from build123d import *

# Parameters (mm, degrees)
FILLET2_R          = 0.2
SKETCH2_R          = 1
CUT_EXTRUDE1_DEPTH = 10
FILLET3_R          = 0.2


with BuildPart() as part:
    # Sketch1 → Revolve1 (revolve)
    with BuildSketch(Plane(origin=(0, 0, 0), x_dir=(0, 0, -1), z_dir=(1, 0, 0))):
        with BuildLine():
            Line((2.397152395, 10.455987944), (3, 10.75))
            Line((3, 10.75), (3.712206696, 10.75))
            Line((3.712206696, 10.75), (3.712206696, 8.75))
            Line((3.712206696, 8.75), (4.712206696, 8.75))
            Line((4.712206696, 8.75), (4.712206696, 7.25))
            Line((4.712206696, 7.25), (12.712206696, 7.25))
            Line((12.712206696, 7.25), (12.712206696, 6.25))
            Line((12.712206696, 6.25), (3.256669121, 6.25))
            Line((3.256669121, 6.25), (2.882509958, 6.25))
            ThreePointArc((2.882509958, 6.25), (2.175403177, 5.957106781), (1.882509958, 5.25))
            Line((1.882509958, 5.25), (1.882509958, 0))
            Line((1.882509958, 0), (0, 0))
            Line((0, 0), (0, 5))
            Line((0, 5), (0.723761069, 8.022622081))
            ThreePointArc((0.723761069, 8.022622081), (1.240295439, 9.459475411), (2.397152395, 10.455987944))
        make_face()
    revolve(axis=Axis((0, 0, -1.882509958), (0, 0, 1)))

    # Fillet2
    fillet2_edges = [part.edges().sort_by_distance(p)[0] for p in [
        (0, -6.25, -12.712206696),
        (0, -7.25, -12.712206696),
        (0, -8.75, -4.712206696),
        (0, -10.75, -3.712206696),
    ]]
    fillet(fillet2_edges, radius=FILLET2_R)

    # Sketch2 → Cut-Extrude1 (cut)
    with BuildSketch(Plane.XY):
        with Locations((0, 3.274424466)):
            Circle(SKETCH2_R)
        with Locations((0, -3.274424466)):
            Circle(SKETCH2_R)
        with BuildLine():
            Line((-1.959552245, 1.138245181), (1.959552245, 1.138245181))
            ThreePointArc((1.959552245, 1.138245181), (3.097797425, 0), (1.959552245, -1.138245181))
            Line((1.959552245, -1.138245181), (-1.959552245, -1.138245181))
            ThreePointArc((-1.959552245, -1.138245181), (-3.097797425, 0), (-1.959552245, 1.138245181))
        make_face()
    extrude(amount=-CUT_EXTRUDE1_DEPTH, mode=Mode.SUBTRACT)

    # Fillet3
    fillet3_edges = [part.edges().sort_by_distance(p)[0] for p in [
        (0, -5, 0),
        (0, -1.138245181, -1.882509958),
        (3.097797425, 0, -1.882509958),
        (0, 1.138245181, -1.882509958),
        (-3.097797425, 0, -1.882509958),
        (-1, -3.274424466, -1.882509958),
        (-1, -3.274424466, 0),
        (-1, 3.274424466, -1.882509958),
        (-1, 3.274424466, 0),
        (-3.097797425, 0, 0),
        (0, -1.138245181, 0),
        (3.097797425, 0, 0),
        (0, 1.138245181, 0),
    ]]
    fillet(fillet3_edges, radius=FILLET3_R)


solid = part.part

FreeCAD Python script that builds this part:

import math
import FreeCAD as App
import Part
import Sketcher
Q = App.Units.Quantity


def edges_at(feature, points):
    """Names of the edges that pass closest to the given points."""
    edges = feature.Shape.Edges
    near = lambda p: min(range(len(edges)), key=lambda i: edges[i].distToShape(Part.Vertex(*p))[0])
    return sorted({f"Edge{near(p) + 1}" for p in points})

doc = App.newDocument("Part")
body = doc.addObject("PartDesign::Body", "Body")

# Sketch on YZ plane
sketch1 = doc.addObject("Sketcher::SketchObject", "Sketch")
body.addObject(sketch1)
sketch1.AttachmentSupport = (doc.YZ_Plane, [""])
sketch1.MapMode = "FlatFace"
sketch1.addGeometry([
    Part.LineSegment(App.Vector(10.8, -3, 0), App.Vector(10.5, -2.4, 0)),  # 0
    Part.ArcOfCircle(Part.Circle(App.Vector(7.8, -3.7, 0), App.Vector(0, 0, 1), 3), math.radians(26), math.radians(85)),  # 1
    Part.LineSegment(App.Vector(8, -0.7, 0), App.Vector(5, 0, 0)),  # 2
    Part.LineSegment(App.Vector(5, 0, 0), App.Vector(0, 0, 0)),  # 3
    Part.LineSegment(App.Vector(0, 0, 0), App.Vector(0, -1.9, 0)),  # 4
    Part.LineSegment(App.Vector(0, -1.9, 0), App.Vector(5.2, -1.9, 0)),  # 5
    Part.ArcOfCircle(Part.Circle(App.Vector(5.2, -2.9, 0), App.Vector(0, 0, 1), 1), math.radians(0), math.radians(90)),  # 6
    Part.LineSegment(App.Vector(6.2, -2.9, 0), App.Vector(6.2, -12.7, 0)),  # 7
    Part.LineSegment(App.Vector(6.2, -12.7, 0), App.Vector(7.2, -12.7, 0)),  # 8
    Part.LineSegment(App.Vector(7.2, -12.7, 0), App.Vector(7.2, -4.7, 0)),  # 9
    Part.LineSegment(App.Vector(7.2, -4.7, 0), App.Vector(8.8, -4.7, 0)),  # 10
    Part.LineSegment(App.Vector(8.8, -4.7, 0), App.Vector(8.8, -3.7, 0)),  # 11
    Part.LineSegment(App.Vector(8.8, -3.7, 0), App.Vector(10.8, -3.7, 0)),  # 12
    Part.LineSegment(App.Vector(10.8, -3.7, 0), App.Vector(10.8, -3, 0)),  # 13
], False)
sketch1.addConstraint([
    Sketcher.Constraint("Tangent", 0, 2, 1, 1),
    Sketcher.Constraint("Coincident", 1, 2, 2, 1),
    Sketcher.Constraint("Coincident", 2, 2, 3, 1),
    Sketcher.Constraint("Coincident", 3, 2, 4, 1),
    Sketcher.Constraint("Coincident", 4, 2, 5, 1),
    Sketcher.Constraint("Tangent", 5, 2, 6, 2),
    Sketcher.Constraint("Tangent", 6, 1, 7, 1),
    Sketcher.Constraint("Coincident", 7, 2, 8, 1),
    Sketcher.Constraint("Coincident", 8, 2, 9, 1),
    Sketcher.Constraint("Coincident", 9, 2, 10, 1),
    Sketcher.Constraint("Coincident", 10, 2, 11, 1),
    Sketcher.Constraint("Coincident", 11, 2, 12, 1),
    Sketcher.Constraint("Coincident", 12, 2, 13, 1),
    Sketcher.Constraint("Coincident", 13, 2, 0, 1),
    Sketcher.Constraint("Horizontal", 3),
    Sketcher.Constraint("Vertical", 4),
    Sketcher.Constraint("Horizontal", 5),
    Sketcher.Constraint("Vertical", 7),
    Sketcher.Constraint("Horizontal", 8),
    Sketcher.Constraint("Vertical", 9),
    Sketcher.Constraint("Horizontal", 10),
    Sketcher.Constraint("Vertical", 11),
    Sketcher.Constraint("Horizontal", 12),
    Sketcher.Constraint("Vertical", 13),
    Sketcher.Constraint("Coincident", 3, 2, -1, 1),
    Sketcher.Constraint("Horizontal", 1, 3, 11, 2),
    Sketcher.Constraint("Equal", 8, 11),
    Sketcher.Constraint("Radius", 1, Q("3 mm")),
    Sketcher.Constraint("Radius", 6, Q("1 mm")),
    Sketcher.Constraint("DistanceX", 3, 2, 3, 1, Q("5 mm")),
    Sketcher.Constraint("DistanceX", 8, 1, 8, 2, Q("1 mm")),
    Sketcher.Constraint("DistanceX", 12, 1, 12, 2, Q("2 mm")),
    Sketcher.Constraint("DistanceY", 9, 1, 9, 2, Q("8 mm")),
    Sketcher.Constraint("DistanceX", 10, 1, 10, 2, Q("1.5 mm")),
    Sketcher.Constraint("DistanceY", 13, 2, -1, 1, Q("3 mm")),
    Sketcher.Constraint("DistanceX", 5, 1, 5, 2, Q("5.25 mm")),
    Sketcher.Constraint("DistanceY", 4, 2, 4, 1, Q("1.88251 mm")),
    Sketcher.Constraint("DistanceY", 7, 2, 7, 1, Q("9.829697 mm")),
    Sketcher.Constraint("DistanceY", 1, 2, -1, 1, Q("0.723761 mm")),
    Sketcher.Constraint("DistanceX", 1, 3, 0, 2, Q("2.696411 mm")),
])
revolution = doc.addObject("PartDesign::Revolution", "Revolution")
body.addObject(revolution)
revolution.Profile = sketch1
revolution.ReferenceAxis = (sketch1, ["V_Axis"])
revolution.Angle = 360
doc.recompute()

fillet = doc.addObject("PartDesign::Fillet", "Fillet")
body.addObject(fillet)
fillet.Base = (revolution, edges_at(revolution, [
    (0, -6.25, -12.712),
    (0, -7.25, -12.712),
    (0, -8.75, -4.712),
    (0, -10.75, -3.712),
]))
fillet.Radius = 0.2

# Sketch on XY plane
sketch2 = doc.addObject("Sketcher::SketchObject", "Sketch001")
body.addObject(sketch2)
sketch2.AttachmentSupport = (doc.XY_Plane, [""])
sketch2.MapMode = "FlatFace"
sketch2.addGeometry([
    Part.Circle(App.Vector(0, 3.3, 0), App.Vector(0, 0, 1), 1),  # 0
    Part.Circle(App.Vector(0, -3.3, 0), App.Vector(0, 0, 1), 1),  # 1
    Part.LineSegment(App.Vector(2, 1.1, 0), App.Vector(-2, 1.1, 0)),  # 2
    Part.ArcOfCircle(Part.Circle(App.Vector(-2, 0, 0), App.Vector(0, 0, 1), 1.1), math.radians(90), math.radians(270)),  # 3
    Part.LineSegment(App.Vector(-2, -1.1, 0), App.Vector(2, -1.1, 0)),  # 4
    Part.ArcOfCircle(Part.Circle(App.Vector(2, 0, 0), App.Vector(0, 0, 1), 1.1), math.radians(-90), math.radians(90)),  # 5
], False)
sketch2.addConstraint([
    Sketcher.Constraint("Tangent", 2, 2, 3, 1),
    Sketcher.Constraint("Tangent", 3, 2, 4, 1),
    Sketcher.Constraint("Tangent", 4, 2, 5, 1),
    Sketcher.Constraint("Tangent", 5, 2, 2, 1),
    Sketcher.Constraint("Horizontal", 2),
    Sketcher.Constraint("Horizontal", 4),
    Sketcher.Constraint("Equal", 0, 1),
    Sketcher.Constraint("Symmetric", 0, 3, 1, 3, -1, 1),
    Sketcher.Constraint("Symmetric", 3, 3, 5, 3, -1, 1),
    Sketcher.Constraint("PointOnObject", 0, 3, -2),
    Sketcher.Constraint("Diameter", 0, Q("2 mm")),
    Sketcher.Constraint("Radius", 3, Q("1.138245 mm")),
    Sketcher.Constraint("DistanceX", 2, 2, 2, 1, Q("3.919104 mm")),
    Sketcher.Constraint("DistanceY", 1, 3, 0, 3, Q("6.548849 mm")),
])
pocket1 = doc.addObject("PartDesign::Pocket", "Pocket")
body.addObject(pocket1)
pocket1.Profile = sketch2
pocket1.Length = 10
doc.recompute()

fillet2 = doc.addObject("PartDesign::Fillet", "Fillet001")
body.addObject(fillet2)
fillet2.Base = (pocket1, edges_at(pocket1, [
    (0, -5, 0),
    (0, -1.138, -1.883),
    (3.098, 0, -1.883),
    (0, 1.138, -1.883),
    (-3.098, 0, -1.883),
    (-1, -3.274, -1.883),
    (-1, -3.274, 0),
    (-1, 3.274, -1.883),
    (-1, 3.274, 0),
    (-3.098, 0, 0),
    (0, -1.138, 0),
    (3.098, 0, 0),
    (0, 1.138, 0),
]))
fillet2.Radius = 0.2

doc.recompute()
